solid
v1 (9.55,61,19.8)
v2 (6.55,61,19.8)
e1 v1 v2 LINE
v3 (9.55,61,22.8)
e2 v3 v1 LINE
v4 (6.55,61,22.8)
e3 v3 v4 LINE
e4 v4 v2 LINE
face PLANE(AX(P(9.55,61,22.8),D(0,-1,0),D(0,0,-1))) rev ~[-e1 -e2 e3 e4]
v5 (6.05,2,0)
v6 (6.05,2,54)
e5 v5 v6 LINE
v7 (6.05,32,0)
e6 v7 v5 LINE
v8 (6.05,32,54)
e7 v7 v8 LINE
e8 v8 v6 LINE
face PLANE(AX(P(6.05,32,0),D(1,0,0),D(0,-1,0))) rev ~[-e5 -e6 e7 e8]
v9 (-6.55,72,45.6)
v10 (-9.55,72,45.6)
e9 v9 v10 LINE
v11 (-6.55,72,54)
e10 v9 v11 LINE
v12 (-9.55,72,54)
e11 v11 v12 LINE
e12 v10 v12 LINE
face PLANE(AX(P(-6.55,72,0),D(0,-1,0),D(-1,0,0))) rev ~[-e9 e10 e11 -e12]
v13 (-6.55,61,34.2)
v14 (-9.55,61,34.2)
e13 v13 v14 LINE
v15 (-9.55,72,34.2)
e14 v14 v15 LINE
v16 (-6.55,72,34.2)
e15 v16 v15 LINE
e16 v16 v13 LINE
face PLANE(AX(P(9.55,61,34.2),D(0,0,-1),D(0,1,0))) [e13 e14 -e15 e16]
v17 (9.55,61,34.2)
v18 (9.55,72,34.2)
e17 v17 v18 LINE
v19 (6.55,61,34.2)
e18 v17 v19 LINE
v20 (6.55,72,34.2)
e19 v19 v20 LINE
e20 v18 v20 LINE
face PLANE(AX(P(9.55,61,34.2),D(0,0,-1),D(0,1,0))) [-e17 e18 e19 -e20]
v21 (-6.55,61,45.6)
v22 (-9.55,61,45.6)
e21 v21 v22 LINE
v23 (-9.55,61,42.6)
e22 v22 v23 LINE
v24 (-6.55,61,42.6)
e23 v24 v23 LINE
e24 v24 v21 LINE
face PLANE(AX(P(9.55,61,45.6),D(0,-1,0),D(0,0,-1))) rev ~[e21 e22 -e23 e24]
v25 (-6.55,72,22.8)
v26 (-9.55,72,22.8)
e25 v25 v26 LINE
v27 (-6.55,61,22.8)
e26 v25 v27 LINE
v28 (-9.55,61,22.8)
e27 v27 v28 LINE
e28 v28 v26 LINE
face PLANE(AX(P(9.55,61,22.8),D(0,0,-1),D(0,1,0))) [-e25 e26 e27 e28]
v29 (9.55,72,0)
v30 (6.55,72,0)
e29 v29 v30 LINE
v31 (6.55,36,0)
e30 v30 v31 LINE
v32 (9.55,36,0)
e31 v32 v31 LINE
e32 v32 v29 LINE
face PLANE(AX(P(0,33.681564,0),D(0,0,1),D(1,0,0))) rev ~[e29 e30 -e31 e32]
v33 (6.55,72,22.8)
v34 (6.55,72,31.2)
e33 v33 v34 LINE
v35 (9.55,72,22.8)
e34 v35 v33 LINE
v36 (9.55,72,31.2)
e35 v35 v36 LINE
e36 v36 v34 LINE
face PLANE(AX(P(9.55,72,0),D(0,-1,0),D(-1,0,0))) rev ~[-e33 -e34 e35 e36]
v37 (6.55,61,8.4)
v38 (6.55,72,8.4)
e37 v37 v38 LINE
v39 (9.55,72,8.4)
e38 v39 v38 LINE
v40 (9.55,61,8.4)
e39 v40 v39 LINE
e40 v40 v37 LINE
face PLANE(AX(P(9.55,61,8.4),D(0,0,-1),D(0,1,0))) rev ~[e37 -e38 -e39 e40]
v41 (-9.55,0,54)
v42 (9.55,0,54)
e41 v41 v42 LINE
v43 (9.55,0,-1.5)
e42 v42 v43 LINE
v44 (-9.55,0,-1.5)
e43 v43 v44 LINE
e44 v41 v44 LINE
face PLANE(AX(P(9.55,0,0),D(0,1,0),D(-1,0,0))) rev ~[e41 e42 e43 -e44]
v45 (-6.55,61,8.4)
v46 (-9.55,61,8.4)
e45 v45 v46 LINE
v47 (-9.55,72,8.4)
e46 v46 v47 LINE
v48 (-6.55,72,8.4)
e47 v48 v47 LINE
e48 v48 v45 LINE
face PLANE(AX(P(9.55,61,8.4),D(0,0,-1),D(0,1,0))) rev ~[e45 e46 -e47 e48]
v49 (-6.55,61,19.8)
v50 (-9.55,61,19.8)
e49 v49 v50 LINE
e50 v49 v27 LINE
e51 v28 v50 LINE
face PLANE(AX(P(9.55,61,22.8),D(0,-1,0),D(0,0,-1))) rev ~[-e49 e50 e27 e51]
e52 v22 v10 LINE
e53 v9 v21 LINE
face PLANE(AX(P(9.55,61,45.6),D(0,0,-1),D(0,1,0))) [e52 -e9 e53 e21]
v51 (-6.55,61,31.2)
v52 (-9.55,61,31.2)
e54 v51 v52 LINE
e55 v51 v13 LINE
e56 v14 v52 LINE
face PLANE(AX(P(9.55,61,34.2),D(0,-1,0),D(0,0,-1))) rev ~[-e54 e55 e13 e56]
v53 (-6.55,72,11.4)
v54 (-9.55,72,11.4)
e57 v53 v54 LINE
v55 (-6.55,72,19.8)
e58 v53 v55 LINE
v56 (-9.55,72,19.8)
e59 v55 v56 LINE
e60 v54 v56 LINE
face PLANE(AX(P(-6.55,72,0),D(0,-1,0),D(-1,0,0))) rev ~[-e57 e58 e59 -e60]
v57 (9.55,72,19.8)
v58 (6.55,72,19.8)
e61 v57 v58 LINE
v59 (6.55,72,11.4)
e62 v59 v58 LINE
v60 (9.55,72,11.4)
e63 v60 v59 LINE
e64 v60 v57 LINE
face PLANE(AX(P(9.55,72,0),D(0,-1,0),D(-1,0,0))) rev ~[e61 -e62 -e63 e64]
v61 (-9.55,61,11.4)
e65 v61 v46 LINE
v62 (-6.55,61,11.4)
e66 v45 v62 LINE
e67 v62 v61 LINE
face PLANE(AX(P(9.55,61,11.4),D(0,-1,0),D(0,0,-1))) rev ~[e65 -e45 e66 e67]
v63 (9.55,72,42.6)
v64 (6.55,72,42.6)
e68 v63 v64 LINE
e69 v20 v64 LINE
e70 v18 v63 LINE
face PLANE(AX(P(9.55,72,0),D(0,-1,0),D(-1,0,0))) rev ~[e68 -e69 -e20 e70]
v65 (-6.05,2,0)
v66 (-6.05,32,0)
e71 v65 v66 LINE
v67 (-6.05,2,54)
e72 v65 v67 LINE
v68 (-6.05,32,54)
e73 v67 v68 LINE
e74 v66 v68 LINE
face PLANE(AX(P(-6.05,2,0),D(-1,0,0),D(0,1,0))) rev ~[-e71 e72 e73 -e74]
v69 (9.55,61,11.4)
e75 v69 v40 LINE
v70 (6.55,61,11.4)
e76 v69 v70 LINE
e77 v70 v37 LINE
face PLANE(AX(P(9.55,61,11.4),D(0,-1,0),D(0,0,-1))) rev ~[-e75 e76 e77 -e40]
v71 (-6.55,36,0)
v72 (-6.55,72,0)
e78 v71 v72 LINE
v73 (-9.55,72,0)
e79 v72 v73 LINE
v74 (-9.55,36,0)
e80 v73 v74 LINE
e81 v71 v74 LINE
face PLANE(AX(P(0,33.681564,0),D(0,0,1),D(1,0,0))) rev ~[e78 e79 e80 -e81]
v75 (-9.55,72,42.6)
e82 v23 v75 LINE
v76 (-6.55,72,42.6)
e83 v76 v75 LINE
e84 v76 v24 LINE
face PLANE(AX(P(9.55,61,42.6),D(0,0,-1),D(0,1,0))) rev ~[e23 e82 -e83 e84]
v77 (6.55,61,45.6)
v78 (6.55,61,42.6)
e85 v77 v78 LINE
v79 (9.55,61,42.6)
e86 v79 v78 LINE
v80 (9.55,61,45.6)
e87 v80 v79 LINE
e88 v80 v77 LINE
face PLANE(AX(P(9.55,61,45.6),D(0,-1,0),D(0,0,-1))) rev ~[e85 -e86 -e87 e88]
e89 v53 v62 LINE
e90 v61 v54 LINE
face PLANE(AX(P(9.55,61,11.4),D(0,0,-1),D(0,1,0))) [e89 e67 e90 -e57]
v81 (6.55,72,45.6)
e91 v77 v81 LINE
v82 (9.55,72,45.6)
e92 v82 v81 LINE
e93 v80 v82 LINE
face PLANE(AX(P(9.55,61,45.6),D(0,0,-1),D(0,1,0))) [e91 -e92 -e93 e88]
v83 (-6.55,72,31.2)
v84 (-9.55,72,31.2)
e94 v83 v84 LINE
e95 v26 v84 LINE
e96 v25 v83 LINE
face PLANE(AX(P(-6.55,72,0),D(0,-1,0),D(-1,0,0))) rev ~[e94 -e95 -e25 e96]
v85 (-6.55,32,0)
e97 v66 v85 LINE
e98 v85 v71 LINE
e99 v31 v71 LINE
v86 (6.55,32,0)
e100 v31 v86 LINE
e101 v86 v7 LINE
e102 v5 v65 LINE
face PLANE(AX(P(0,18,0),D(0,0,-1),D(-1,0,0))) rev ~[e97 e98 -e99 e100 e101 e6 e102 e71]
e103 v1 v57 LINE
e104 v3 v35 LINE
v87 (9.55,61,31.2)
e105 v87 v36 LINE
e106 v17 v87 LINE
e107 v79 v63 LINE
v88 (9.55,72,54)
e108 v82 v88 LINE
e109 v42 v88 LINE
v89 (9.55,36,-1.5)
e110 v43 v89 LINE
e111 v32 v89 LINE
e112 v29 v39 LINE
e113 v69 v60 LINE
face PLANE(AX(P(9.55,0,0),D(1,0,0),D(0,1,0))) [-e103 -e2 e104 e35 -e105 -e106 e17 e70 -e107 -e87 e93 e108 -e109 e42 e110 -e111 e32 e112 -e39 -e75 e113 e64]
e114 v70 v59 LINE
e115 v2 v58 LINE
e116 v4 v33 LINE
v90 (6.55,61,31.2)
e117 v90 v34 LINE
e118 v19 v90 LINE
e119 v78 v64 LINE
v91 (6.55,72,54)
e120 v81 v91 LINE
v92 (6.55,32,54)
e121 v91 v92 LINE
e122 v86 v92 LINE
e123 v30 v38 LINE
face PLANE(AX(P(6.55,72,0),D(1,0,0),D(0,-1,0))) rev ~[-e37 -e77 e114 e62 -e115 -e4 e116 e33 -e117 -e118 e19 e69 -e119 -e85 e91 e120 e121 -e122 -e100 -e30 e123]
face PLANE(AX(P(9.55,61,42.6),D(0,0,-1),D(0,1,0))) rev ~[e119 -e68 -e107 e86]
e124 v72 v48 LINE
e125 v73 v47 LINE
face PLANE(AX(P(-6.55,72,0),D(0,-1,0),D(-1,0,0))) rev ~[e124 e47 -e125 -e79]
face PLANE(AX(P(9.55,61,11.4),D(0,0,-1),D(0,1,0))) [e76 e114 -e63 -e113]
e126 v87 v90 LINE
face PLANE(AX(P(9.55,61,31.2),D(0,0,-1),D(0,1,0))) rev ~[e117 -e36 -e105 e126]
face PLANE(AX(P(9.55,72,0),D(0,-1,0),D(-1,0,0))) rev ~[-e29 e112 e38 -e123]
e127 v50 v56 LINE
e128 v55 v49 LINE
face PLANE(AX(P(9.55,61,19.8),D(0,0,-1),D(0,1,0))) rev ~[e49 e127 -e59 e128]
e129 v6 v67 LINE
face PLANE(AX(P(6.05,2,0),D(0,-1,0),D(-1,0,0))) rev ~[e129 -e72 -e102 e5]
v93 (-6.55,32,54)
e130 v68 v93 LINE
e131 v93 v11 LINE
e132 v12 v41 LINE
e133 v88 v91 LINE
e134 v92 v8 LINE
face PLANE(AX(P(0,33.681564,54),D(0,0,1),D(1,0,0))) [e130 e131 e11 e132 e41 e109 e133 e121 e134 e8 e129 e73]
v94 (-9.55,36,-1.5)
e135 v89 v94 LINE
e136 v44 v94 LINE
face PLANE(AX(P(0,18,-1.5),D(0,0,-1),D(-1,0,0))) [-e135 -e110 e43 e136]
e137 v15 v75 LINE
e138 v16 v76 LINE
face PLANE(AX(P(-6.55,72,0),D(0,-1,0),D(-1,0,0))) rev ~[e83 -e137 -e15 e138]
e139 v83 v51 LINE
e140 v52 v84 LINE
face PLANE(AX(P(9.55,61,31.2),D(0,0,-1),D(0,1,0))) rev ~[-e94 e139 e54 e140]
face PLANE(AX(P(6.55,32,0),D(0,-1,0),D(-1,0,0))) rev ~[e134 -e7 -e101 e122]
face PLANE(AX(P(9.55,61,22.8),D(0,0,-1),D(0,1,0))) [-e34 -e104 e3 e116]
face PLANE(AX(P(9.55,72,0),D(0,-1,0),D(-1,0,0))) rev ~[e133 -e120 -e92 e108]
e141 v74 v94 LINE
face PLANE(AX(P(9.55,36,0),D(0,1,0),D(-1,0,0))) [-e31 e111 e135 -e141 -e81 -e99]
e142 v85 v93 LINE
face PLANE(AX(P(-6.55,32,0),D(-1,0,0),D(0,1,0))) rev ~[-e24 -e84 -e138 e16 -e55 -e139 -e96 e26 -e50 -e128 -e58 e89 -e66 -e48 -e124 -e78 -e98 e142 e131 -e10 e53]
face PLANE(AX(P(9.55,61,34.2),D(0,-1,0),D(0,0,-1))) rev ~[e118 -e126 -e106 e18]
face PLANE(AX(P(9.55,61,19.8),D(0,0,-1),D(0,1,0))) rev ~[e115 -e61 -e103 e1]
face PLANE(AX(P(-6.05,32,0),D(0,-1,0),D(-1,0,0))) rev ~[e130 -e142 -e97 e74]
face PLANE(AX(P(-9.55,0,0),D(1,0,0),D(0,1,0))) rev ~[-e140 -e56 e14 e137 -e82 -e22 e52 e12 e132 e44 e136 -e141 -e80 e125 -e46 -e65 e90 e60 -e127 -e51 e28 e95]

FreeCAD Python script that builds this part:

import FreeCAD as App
import Part
import Sketcher

doc = App.newDocument("Part")
body = doc.addObject("PartDesign::Body", "Body")

sketch1 = body.newObject("Sketcher::SketchObject", "Sketch")
sketch1.AttachmentSupport = (doc.getObject("XY_Plane"), [""])
sketch1.MapMode = "FlatFace"
sketch1.addGeometry(Part.LineSegment(App.Vector(-9.55, 72, 0), App.Vector(-9.55, 0, 0)), False)
sketch1.addGeometry(Part.LineSegment(App.Vector(-9.55, 0, 0), App.Vector(9.55, 0, 0)), False)
sketch1.addGeometry(Part.LineSegment(App.Vector(9.55, 0, 0), App.Vector(9.55, 72, 0)), False)
sketch1.addGeometry(Part.LineSegment(App.Vector(9.55, 72, 0), App.Vector(6.55, 72, 0)), False)
sketch1.addGeometry(Part.LineSegment(App.Vector(6.55, 72, 0), App.Vector(6.55, 32, 0)), False)
sketch1.addGeometry(Part.LineSegment(App.Vector(6.55, 32, 0), App.Vector(6.05, 32, 0)), False)
sketch1.addGeometry(Part.LineSegment(App.Vector(6.05, 32, 0), App.Vector(6.05, 2, 0)), False)
sketch1.addGeometry(Part.LineSegment(App.Vector(6.05, 2, 0), App.Vector(-6.05, 2, 0)), False)
sketch1.addGeometry(Part.LineSegment(App.Vector(-6.05, 2, 0), App.Vector(-6.05, 32, 0)), False)
sketch1.addGeometry(Part.LineSegment(App.Vector(-6.05, 32, 0), App.Vector(-6.55, 32, 0)), False)
sketch1.addGeometry(Part.LineSegment(App.Vector(-6.55, 32, 0), App.Vector(-6.55, 72, 0)), False)
sketch1.addGeometry(Part.LineSegment(App.Vector(-6.55, 72, 0), App.Vector(-9.55, 72, 0)), False)
sketch1.addConstraint(Sketcher.Constraint("Coincident", 0, 2, 1, 1))
sketch1.addConstraint(Sketcher.Constraint("Coincident", 1, 2, 2, 1))
sketch1.addConstraint(Sketcher.Constraint("Coincident", 2, 2, 3, 1))
sketch1.addConstraint(Sketcher.Constraint("Coincident", 3, 2, 4, 1))
sketch1.addConstraint(Sketcher.Constraint("Coincident", 4, 2, 5, 1))
sketch1.addConstraint(Sketcher.Constraint("Coincident", 5, 2, 6, 1))
sketch1.addConstraint(Sketcher.Constraint("Coincident", 6, 2, 7, 1))
sketch1.addConstraint(Sketcher.Constraint("Coincident", 7, 2, 8, 1))
sketch1.addConstraint(Sketcher.Constraint("Coincident", 8, 2, 9, 1))
sketch1.addConstraint(Sketcher.Constraint("Coincident", 9, 2, 10, 1))
sketch1.addConstraint(Sketcher.Constraint("Coincident", 10, 2, 11, 1))
sketch1.addConstraint(Sketcher.Constraint("Coincident", 11, 2, 0, 1))
sketch1.addConstraint(Sketcher.Constraint("Vertical", 0))
sketch1.addConstraint(Sketcher.Constraint("Horizontal", 1))
sketch1.addConstraint(Sketcher.Constraint("Vertical", 2))
sketch1.addConstraint(Sketcher.Constraint("Horizontal", 3))
sketch1.addConstraint(Sketcher.Constraint("Vertical", 4))
sketch1.addConstraint(Sketcher.Constraint("Horizontal", 5))
sketch1.addConstraint(Sketcher.Constraint("Vertical", 6))
sketch1.addConstraint(Sketcher.Constraint("Horizontal", 7))
sketch1.addConstraint(Sketcher.Constraint("Vertical", 8))
sketch1.addConstraint(Sketcher.Constraint("Horizontal", 9))
sketch1.addConstraint(Sketcher.Constraint("Vertical", 10))
sketch1.addConstraint(Sketcher.Constraint("Horizontal", 11))
sketch1.addConstraint(Sketcher.Constraint("Symmetric", 0, 2, 1, 2, -1, 1))
sketch1.addConstraint(Sketcher.Constraint("Symmetric", 5, 2, 8, 2, -2))
sketch1.addConstraint(Sketcher.Constraint("Symmetric", 3, 2, 10, 2, -2))
sketch1.addConstraint(Sketcher.Constraint("DistanceX", 3, 2, 3, 1, 3.0))
sketch1.addConstraint(Sketcher.Constraint("DistanceY", 0, 2, 0, 1, 72.0))
sketch1.addConstraint(Sketcher.Constraint("DistanceY", 4, 2, 4, 1, 40.0))
sketch1.addConstraint(Sketcher.Constraint("DistanceY", 6, 2, 6, 1, 30.0))
sketch1.addConstraint(Sketcher.Constraint("DistanceX", 1, 1, 1, 2, 19.1))
sketch1.addConstraint(Sketcher.Constraint("DistanceX", 5, 2, 5, 1, 0.5))
pad1 = body.newObject("PartDesign::Pad", "Pad")
pad1.Profile = sketch1
pad1.Length = 54

sketch2 = body.newObject("Sketcher::SketchObject", "Sketch001")
sketch2.AttachmentSupport = (doc.getObject("YZ_Plane"), [""])
sketch2.MapMode = "FlatFace"
sketch2.AttachmentOffset = App.Placement(App.Vector(0, 0, 9.55), App.Rotation())
sketch2.addGeometry(Part.LineSegment(App.Vector(72, 45.6, 0), App.Vector(61, 45.6, 0)), False)
sketch2.addGeometry(Part.LineSegment(App.Vector(61, 45.6, 0), App.Vector(61, 42.6, 0)), False)
sketch2.addGeometry(Part.LineSegment(App.Vector(61, 42.6, 0), App.Vector(72, 42.6, 0)), False)
sketch2.addGeometry(Part.LineSegment(App.Vector(72, 42.6, 0), App.Vector(72, 45.6, 0)), False)
sketch2.addGeometry(Part.LineSegment(App.Vector(72, 34.2, 0), App.Vector(61, 34.2, 0)), False)
sketch2.addGeometry(Part.LineSegment(App.Vector(61, 34.2, 0), App.Vector(61, 31.2, 0)), False)
sketch2.addGeometry(Part.LineSegment(App.Vector(61, 31.2, 0), App.Vector(72, 31.2, 0)), False)
sketch2.addGeometry(Part.LineSegment(App.Vector(72, 31.2, 0), App.Vector(72, 34.2, 0)), False)
sketch2.addGeometry(Part.LineSegment(App.Vector(72, 22.8, 0), App.Vector(61, 22.8, 0)), False)
sketch2.addGeometry(Part.LineSegment(App.Vector(61, 22.8, 0), App.Vector(61, 19.8, 0)), False)
sketch2.addGeometry(Part.LineSegment(App.Vector(61, 19.8, 0), App.Vector(72, 19.8, 0)), False)
sketch2.addGeometry(Part.LineSegment(App.Vector(72, 19.8, 0), App.Vector(72, 22.8, 0)), False)
sketch2.addGeometry(Part.LineSegment(App.Vector(72, 11.4, 0), App.Vector(61, 11.4, 0)), False)
sketch2.addGeometry(Part.LineSegment(App.Vector(61, 11.4, 0), App.Vector(61, 8.4, 0)), False)
sketch2.addGeometry(Part.LineSegment(App.Vector(61, 8.4, 0), App.Vector(72, 8.4, 0)), False)
sketch2.addGeometry(Part.LineSegment(App.Vector(72, 8.4, 0), App.Vector(72, 11.4, 0)), False)
sketch2.addConstraint(Sketcher.Constraint("Coincident", 0, 2, 1, 1))
sketch2.addConstraint(Sketcher.Constraint("Coincident", 1, 2, 2, 1))
sketch2.addConstraint(Sketcher.Constraint("Coincident", 2, 2, 3, 1))
sketch2.addConstraint(Sketcher.Constraint("Coincident", 3, 2, 0, 1))
sketch2.addConstraint(Sketcher.Constraint("Coincident", 4, 2, 5, 1))
sketch2.addConstraint(Sketcher.Constraint("Coincident", 5, 2, 6, 1))
sketch2.addConstraint(Sketcher.Constraint("Coincident", 6, 2, 7, 1))
sketch2.addConstraint(Sketcher.Constraint("Coincident", 7, 2, 4, 1))
sketch2.addConstraint(Sketcher.Constraint("Coincident", 8, 2, 9, 1))
sketch2.addConstraint(Sketcher.Constraint("Coincident", 9, 2, 10, 1))
sketch2.addConstraint(Sketcher.Constraint("Coincident", 10, 2, 11, 1))
sketch2.addConstraint(Sketcher.Constraint("Coincident", 11, 2, 8, 1))
sketch2.addConstraint(Sketcher.Constraint("Coincident", 12, 2, 13, 1))
sketch2.addConstraint(Sketcher.Constraint("Coincident", 13, 2, 14, 1))
sketch2.addConstraint(Sketcher.Constraint("Coincident", 14, 2, 15, 1))
sketch2.addConstraint(Sketcher.Constraint("Coincident", 15, 2, 12, 1))
sketch2.addConstraint(Sketcher.Constraint("Horizontal", 0))
sketch2.addConstraint(Sketcher.Constraint("Vertical", 1))
sketch2.addConstraint(Sketcher.Constraint("Horizontal", 2))
sketch2.addConstraint(Sketcher.Constraint("Vertical", 3))
sketch2.addConstraint(Sketcher.Constraint("Horizontal", 4))
sketch2.addConstraint(Sketcher.Constraint("Vertical", 5))
sketch2.addConstraint(Sketcher.Constraint("Horizontal", 6))
sketch2.addConstraint(Sketcher.Constraint("Vertical", 7))
sketch2.addConstraint(Sketcher.Constraint("Horizontal", 8))
sketch2.addConstraint(Sketcher.Constraint("Vertical", 9))
sketch2.addConstraint(Sketcher.Constraint("Horizontal", 10))
sketch2.addConstraint(Sketcher.Constraint("Vertical", 11))
sketch2.addConstraint(Sketcher.Constraint("Horizontal", 12))
sketch2.addConstraint(Sketcher.Constraint("Vertical", 13))
sketch2.addConstraint(Sketcher.Constraint("Horizontal", 14))
sketch2.addConstraint(Sketcher.Constraint("Vertical", 15))
sketch2.addConstraint(Sketcher.Constraint("Vertical", 1, 2, 4, 2))
sketch2.addConstraint(Sketcher.Constraint("Vertical", 3, 2, 6, 2))
sketch2.addConstraint(Sketcher.Constraint("Vertical", 5, 2, 8, 2))
sketch2.addConstraint(Sketcher.Constraint("Vertical", 7, 2, 10, 2))
sketch2.addConstraint(Sketcher.Constraint("Vertical", 9, 2, 12, 2))
sketch2.addConstraint(Sketcher.Constraint("Vertical", 11, 2, 14, 2))
sketch2.addConstraint(Sketcher.Constraint("Equal", 3, 5))
sketch2.addConstraint(Sketcher.Constraint("Equal", 7, 9))
sketch2.addConstraint(Sketcher.Constraint("Equal", 11, 13))
sketch2.addConstraint(Sketcher.Constraint("DistanceX", 0, 2, 0, 1, 11.0))
sketch2.addConstraint(Sketcher.Constraint("DistanceY", 1, 2, 1, 1, 3.0))
sketch2.addConstraint(Sketcher.Constraint("DistanceX", -1, 1, 0, 2, 61.0))
sketch2.addConstraint(Sketcher.Constraint("DistanceY", -1, 1, 0, 2, 45.6))
sketch2.addConstraint(Sketcher.Constraint("DistanceY", -1, 1, 4, 2, 34.2))
sketch2.addConstraint(Sketcher.Constraint("DistanceY", -1, 1, 8, 2, 22.8))
sketch2.addConstraint(Sketcher.Constraint("DistanceY", -1, 1, 12, 2, 11.4))
pocket1 = body.newObject("PartDesign::Pocket", "Pocket")
pocket1.Profile = sketch2
pocket1.Type = "ThroughAll"

sketch3 = body.newObject("Sketcher::SketchObject", "Sketch002")
sketch3.AttachmentSupport = (doc.getObject("XY_Plane"), [""])
sketch3.MapMode = "FlatFace"
sketch3.addGeometry(Part.LineSegment(App.Vector(9.55, 36, 0), App.Vector(9.55, 0, 0)), False)
sketch3.addGeometry(Part.LineSegment(App.Vector(9.55, 0, 0), App.Vector(-9.55, 0, 0)), False)
sketch3.addGeometry(Part.LineSegment(App.Vector(-9.55, 0, 0), App.Vector(-9.55, 36, 0)), False)
sketch3.addGeometry(Part.LineSegment(App.Vector(-9.55, 36, 0), App.Vector(9.55, 36, 0)), False)
sketch3.addConstraint(Sketcher.Constraint("Coincident", 0, 2, 1, 1))
sketch3.addConstraint(Sketcher.Constraint("Coincident", 1, 2, 2, 1))
sketch3.addConstraint(Sketcher.Constraint("Coincident", 2, 2, 3, 1))
sketch3.addConstraint(Sketcher.Constraint("Coincident", 3, 2, 0, 1))
sketch3.addConstraint(Sketcher.Constraint("Vertical", 0))
sketch3.addConstraint(Sketcher.Constraint("Horizontal", 1))
sketch3.addConstraint(Sketcher.Constraint("Vertical", 2))
sketch3.addConstraint(Sketcher.Constraint("Horizontal", 3))
sketch3.addConstraint(Sketcher.Constraint("Symmetric", 0, 2, 1, 2, -1, 1))
sketch3.addConstraint(Sketcher.Constraint("DistanceY", 0, 2, 0, 1, 36.0))
sketch3.addConstraint(Sketcher.Constraint("DistanceX", 1, 2, 1, 1, 19.1))
pad2 = body.newObject("PartDesign::Pad", "Pad001")
pad2.Profile = sketch3
pad2.Length = 1.5
pad2.Reversed = True

doc.recompute()
